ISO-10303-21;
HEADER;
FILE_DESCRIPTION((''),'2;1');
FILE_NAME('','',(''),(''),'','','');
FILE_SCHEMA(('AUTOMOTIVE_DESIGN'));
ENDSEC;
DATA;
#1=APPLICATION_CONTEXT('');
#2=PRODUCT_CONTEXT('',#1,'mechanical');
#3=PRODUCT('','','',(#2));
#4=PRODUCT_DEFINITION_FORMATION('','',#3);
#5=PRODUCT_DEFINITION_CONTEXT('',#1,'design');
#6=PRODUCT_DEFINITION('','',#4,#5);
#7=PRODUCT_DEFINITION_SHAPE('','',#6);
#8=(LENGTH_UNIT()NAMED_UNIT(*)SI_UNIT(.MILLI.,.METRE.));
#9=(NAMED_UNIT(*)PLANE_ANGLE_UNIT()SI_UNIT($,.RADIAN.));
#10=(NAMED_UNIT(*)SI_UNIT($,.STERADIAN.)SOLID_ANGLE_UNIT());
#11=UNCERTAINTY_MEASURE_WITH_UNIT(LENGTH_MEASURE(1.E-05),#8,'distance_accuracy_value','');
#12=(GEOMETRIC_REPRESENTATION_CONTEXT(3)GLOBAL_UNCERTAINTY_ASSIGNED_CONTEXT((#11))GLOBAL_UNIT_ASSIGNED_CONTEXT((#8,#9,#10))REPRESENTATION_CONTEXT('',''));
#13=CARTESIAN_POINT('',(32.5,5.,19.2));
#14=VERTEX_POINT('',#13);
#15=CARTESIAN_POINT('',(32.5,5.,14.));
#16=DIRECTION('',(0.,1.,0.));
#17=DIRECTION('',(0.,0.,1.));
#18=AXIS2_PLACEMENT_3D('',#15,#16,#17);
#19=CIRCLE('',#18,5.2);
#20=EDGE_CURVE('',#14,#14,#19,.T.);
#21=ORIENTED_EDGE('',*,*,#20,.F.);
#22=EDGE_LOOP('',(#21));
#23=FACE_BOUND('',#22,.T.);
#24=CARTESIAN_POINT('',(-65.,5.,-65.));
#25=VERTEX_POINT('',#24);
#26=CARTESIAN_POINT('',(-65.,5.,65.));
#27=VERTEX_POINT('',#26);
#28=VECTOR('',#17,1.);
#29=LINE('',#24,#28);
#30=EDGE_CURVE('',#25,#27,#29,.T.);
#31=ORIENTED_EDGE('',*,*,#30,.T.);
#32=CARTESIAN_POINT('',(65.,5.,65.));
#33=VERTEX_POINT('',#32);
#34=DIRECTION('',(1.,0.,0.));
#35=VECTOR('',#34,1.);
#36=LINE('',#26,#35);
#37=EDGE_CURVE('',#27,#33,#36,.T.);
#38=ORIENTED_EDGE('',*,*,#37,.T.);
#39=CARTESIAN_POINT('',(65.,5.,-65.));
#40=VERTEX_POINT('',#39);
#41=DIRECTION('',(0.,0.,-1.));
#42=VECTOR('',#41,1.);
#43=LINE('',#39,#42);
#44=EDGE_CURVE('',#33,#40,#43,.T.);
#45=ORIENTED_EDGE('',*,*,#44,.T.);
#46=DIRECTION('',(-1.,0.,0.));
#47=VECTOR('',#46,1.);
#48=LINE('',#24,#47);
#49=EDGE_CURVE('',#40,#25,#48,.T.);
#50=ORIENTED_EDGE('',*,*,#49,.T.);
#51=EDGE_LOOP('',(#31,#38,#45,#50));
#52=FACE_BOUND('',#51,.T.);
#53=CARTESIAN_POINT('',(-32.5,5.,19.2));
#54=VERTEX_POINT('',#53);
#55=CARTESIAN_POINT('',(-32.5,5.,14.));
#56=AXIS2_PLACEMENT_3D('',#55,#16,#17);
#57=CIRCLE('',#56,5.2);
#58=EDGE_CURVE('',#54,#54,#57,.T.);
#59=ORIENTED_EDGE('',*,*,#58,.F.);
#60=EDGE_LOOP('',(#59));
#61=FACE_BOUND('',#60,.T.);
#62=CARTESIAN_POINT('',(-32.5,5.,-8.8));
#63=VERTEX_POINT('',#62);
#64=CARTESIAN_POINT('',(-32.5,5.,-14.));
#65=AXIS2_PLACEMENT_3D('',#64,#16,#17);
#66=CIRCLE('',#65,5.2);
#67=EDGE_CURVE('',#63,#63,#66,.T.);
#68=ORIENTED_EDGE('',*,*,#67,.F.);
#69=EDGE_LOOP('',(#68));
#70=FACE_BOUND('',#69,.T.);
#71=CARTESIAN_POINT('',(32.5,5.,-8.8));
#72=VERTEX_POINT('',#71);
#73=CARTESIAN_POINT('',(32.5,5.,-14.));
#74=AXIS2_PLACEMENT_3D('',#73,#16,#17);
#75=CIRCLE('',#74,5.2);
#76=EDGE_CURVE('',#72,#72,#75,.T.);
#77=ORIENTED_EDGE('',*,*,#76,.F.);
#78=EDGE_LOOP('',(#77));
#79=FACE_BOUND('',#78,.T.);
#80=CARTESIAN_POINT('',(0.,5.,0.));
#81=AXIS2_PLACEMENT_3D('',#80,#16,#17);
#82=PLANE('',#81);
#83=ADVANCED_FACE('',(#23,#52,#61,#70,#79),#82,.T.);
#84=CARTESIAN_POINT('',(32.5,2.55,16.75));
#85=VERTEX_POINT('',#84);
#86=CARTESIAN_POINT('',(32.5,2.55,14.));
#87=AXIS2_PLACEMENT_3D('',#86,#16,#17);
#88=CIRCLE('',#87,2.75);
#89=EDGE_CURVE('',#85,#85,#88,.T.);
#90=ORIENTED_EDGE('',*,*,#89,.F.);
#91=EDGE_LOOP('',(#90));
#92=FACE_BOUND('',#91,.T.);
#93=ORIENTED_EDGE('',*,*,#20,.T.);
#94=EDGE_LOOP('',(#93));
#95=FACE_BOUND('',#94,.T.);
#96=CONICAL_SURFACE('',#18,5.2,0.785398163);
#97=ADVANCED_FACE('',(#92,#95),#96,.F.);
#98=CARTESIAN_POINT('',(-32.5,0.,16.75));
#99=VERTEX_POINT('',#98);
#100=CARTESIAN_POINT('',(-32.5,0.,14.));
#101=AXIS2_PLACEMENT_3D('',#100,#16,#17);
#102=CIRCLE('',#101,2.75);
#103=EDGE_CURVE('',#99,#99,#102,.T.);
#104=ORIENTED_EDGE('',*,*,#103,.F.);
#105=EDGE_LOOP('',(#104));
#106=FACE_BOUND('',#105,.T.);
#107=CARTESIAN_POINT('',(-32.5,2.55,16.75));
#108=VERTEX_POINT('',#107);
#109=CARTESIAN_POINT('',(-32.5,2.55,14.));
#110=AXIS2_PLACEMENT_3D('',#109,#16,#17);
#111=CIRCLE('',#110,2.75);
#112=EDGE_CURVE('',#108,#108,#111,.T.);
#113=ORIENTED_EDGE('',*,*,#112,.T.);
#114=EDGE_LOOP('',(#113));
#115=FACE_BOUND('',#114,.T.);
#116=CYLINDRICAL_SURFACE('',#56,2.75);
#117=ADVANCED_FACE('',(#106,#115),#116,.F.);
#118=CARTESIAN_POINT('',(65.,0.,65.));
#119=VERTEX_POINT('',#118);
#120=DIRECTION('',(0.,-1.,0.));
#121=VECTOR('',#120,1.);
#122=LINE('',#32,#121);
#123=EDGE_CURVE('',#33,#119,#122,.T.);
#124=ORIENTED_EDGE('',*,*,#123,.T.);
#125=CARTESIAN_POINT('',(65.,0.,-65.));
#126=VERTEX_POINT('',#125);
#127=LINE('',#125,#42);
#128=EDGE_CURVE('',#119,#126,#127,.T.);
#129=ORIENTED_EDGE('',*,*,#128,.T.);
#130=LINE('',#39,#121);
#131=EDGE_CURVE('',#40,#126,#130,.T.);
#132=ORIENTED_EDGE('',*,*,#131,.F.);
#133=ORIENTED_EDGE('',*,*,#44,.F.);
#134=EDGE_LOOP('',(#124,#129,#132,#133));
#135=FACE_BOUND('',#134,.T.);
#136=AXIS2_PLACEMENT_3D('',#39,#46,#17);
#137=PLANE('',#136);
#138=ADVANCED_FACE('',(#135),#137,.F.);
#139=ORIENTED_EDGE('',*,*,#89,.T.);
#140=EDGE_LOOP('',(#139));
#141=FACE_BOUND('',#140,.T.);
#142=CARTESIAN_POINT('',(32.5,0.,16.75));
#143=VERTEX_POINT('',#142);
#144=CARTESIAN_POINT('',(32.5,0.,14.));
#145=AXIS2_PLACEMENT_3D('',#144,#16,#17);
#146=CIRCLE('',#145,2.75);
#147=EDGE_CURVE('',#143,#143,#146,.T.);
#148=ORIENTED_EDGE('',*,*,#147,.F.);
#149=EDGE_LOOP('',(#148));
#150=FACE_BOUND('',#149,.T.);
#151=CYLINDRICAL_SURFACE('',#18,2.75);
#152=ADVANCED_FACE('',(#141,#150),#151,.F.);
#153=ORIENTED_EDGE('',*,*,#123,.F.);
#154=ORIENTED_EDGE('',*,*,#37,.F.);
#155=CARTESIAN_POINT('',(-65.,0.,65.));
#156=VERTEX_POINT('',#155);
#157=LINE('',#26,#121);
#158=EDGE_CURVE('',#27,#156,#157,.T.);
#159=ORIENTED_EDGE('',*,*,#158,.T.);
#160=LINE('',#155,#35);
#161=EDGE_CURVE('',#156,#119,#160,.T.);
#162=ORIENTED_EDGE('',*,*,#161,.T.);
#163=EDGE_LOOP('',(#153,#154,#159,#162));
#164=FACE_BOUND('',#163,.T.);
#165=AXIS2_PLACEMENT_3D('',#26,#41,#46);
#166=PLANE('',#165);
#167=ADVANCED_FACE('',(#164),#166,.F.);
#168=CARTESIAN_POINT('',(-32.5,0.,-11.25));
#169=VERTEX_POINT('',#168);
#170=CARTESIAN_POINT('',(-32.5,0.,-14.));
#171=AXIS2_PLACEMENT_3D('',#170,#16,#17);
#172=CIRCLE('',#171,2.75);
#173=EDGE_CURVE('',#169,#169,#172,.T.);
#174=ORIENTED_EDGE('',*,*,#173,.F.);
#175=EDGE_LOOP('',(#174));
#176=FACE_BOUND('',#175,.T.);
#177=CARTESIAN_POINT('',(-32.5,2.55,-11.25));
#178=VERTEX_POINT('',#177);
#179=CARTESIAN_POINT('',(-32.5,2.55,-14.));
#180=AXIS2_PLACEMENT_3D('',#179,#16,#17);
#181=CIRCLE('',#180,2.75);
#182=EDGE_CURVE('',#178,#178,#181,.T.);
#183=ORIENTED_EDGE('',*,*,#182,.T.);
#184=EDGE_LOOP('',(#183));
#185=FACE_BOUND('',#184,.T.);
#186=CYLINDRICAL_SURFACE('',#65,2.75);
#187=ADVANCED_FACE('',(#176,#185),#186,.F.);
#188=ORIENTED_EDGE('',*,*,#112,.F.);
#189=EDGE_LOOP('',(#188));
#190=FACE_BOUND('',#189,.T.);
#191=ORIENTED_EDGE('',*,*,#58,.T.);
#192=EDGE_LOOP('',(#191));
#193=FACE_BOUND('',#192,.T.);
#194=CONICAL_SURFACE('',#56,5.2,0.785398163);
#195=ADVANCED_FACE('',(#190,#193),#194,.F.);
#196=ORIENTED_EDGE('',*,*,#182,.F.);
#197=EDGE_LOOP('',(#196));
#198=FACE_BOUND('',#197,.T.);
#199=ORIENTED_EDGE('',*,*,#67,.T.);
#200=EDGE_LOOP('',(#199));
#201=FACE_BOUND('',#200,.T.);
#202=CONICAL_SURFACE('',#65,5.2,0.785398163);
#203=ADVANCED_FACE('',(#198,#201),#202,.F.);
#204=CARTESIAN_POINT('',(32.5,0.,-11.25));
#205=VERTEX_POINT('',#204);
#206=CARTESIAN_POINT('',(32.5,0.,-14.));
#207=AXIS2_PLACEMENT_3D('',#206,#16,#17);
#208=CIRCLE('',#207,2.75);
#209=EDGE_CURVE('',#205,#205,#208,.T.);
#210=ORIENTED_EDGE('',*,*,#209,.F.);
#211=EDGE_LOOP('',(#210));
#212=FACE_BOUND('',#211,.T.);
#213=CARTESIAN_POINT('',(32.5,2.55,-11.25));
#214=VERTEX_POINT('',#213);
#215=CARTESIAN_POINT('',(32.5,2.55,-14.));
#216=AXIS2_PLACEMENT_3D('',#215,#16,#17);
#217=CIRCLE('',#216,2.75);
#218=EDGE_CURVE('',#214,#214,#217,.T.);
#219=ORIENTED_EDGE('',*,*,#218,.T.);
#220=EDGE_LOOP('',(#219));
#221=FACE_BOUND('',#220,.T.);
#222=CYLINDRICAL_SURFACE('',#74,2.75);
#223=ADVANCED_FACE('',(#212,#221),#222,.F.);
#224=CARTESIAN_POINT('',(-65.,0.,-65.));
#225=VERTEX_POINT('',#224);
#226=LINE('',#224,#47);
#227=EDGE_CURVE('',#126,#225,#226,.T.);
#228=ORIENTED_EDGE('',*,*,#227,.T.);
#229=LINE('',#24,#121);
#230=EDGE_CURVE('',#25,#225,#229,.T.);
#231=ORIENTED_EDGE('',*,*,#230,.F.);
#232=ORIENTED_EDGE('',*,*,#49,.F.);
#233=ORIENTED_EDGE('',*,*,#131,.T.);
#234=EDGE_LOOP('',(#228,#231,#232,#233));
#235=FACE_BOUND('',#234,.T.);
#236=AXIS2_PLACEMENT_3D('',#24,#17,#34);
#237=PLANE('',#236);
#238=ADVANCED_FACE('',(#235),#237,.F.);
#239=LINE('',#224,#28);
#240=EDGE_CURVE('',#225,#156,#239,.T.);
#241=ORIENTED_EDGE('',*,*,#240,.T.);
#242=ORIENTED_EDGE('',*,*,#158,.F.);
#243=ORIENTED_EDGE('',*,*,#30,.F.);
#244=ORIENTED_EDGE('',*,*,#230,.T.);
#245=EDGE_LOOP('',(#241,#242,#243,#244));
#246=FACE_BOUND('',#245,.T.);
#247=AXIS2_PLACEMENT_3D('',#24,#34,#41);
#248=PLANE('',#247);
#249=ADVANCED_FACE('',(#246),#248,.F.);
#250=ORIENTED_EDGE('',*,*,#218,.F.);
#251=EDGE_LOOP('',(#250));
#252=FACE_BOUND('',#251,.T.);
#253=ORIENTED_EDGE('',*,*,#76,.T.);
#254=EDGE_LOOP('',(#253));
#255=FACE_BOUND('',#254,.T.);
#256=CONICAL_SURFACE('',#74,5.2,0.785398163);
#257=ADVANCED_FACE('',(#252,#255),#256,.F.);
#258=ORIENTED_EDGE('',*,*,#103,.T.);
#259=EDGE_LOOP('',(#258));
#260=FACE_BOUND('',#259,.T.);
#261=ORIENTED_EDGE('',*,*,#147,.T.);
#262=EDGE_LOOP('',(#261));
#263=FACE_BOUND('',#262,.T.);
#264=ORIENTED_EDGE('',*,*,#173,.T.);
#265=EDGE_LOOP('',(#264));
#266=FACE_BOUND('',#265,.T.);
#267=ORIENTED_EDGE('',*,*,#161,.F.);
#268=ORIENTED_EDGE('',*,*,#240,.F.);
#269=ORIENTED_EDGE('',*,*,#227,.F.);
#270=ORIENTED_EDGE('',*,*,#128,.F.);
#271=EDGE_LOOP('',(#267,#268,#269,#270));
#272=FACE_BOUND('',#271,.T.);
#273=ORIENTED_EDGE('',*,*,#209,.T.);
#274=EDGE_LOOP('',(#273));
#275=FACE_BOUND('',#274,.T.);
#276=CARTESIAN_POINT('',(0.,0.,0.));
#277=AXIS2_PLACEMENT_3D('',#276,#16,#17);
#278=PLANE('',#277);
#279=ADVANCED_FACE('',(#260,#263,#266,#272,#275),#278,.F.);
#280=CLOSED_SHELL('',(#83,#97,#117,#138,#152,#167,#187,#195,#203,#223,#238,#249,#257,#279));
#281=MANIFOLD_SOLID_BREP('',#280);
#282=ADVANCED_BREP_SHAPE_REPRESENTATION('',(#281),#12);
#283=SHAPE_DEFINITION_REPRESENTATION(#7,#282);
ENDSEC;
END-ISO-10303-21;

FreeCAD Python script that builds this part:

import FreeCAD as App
import Part
import Sketcher

V = App.Vector
Q = App.Units.Quantity

doc = App.newDocument("Part")
body = doc.addObject("PartDesign::Body", "Body")

# Sketch on XZ plane
sketch1 = doc.addObject("Sketcher::SketchObject", "Sketch")
body.addObject(sketch1)
sketch1.AttachmentSupport = (doc.XZ_Plane, [""])
sketch1.MapMode = "FlatFace"
sketch1.addGeometry(Part.LineSegment(V(-65, -65, 0), V(-65, 65, 0)), False)
sketch1.addGeometry(Part.LineSegment(V(-65, 65, 0), V(65, 65, 0)), False)
sketch1.addGeometry(Part.LineSegment(V(65, 65, 0), V(65, -65, 0)), False)
sketch1.addGeometry(Part.LineSegment(V(65, -65, 0), V(-65, -65, 0)), False)
sketch1.addConstraint(Sketcher.Constraint("Coincident", 0, 2, 1, 1))
sketch1.addConstraint(Sketcher.Constraint("Coincident", 1, 2, 2, 1))
sketch1.addConstraint(Sketcher.Constraint("Coincident", 2, 2, 3, 1))
sketch1.addConstraint(Sketcher.Constraint("Coincident", 3, 2, 0, 1))
sketch1.addConstraint(Sketcher.Constraint("Vertical", 0))
sketch1.addConstraint(Sketcher.Constraint("Horizontal", 1))
sketch1.addConstraint(Sketcher.Constraint("Vertical", 2))
sketch1.addConstraint(Sketcher.Constraint("Horizontal", 3))
sketch1.addConstraint(Sketcher.Constraint("Symmetric", 0, 2, 2, 2, -1, 1))
sketch1.addConstraint(Sketcher.Constraint("Equal", 3, 0))
sketch1.addConstraint(Sketcher.Constraint("DistanceX", 1, 1, 1, 2, Q("130 mm")))
pad1 = doc.addObject("PartDesign::Pad", "Pad")
body.addObject(pad1)
pad1.Profile = sketch1
pad1.Length = 5
pad1.Reversed = True

# Sketch on YZ plane
sketch2 = doc.addObject("Sketcher::SketchObject", "Sketch001")
body.addObject(sketch2)
sketch2.AttachmentSupport = (doc.YZ_Plane, [""])
sketch2.MapMode = "FlatFace"
sketch2.AttachmentOffset = App.Placement(V(0, 0, -32.5), App.Rotation())
sketch2.addGeometry(Part.LineSegment(V(0, -14, 0), V(5, -14, 0)), False)
sketch2.addGeometry(Part.LineSegment(V(5, -14, 0), V(5, -8.8, 0)), False)
sketch2.addGeometry(Part.LineSegment(V(5, -8.8, 0), V(2.5, -11.2, 0)), False)
sketch2.addGeometry(Part.LineSegment(V(2.5, -11.2, 0), V(0, -11.2, 0)), False)
sketch2.addGeometry(Part.LineSegment(V(0, -11.2, 0), V(0, -14, 0)), False)
sketch2.addGeometry(Part.LineSegment(V(5, -14, 0), V(0, -14, 0)), True)  # axis
sketch2.addConstraint(Sketcher.Constraint("Coincident", 0, 2, 1, 1))
sketch2.addConstraint(Sketcher.Constraint("Coincident", 1, 2, 2, 1))
sketch2.addConstraint(Sketcher.Constraint("Coincident", 2, 2, 3, 1))
sketch2.addConstraint(Sketcher.Constraint("Coincident", 3, 2, 4, 1))
sketch2.addConstraint(Sketcher.Constraint("Coincident", 4, 2, 0, 1))
sketch2.addConstraint(Sketcher.Constraint("Horizontal", 0))
sketch2.addConstraint(Sketcher.Constraint("Vertical", 1))
sketch2.addConstraint(Sketcher.Constraint("Horizontal", 3))
sketch2.addConstraint(Sketcher.Constraint("Vertical", 4))
sketch2.addConstraint(Sketcher.Constraint("Horizontal", 5))
sketch2.addConstraint(Sketcher.Constraint("Coincident", 5, 1, 0, 2))
sketch2.addConstraint(Sketcher.Constraint("PointOnObject", 3, 2, -2))
sketch2.addConstraint(Sketcher.Constraint("PointOnObject", 5, 2, -2))
sketch2.addConstraint(Sketcher.Constraint("DistanceX", 0, 1, 0, 2, Q("5 mm")))
sketch2.addConstraint(Sketcher.Constraint("Angle", 2, Q("-135 deg")))
sketch2.addConstraint(Sketcher.Constraint("DistanceY", 1, 1, 1, 2, Q("5.2 mm")))
sketch2.addConstraint(Sketcher.Constraint("DistanceY", 0, 2, -1, 1, Q("14 mm")))
sketch2.addConstraint(Sketcher.Constraint("DistanceX", 3, 2, 3, 1, Q("2.55 mm")))
groove = doc.addObject("PartDesign::Groove", "Groove")
body.addObject(groove)
groove.Profile = sketch2
groove.ReferenceAxis = (sketch2, ["Axis0"])
groove.Angle = 360
doc.recompute()

linearpattern = doc.addObject("PartDesign::LinearPattern", "LinearPattern")
body.addObject(linearpattern)
linearpattern.Originals = [groove]
linearpattern.Direction = (doc.X_Axis, [""])
linearpattern.Mode = "offset"
linearpattern.Offset = 65
linearpattern.Occurrences = 2
body.Tip = linearpattern
doc.recompute()

datumline = doc.addObject("PartDesign::Line", "DatumLine")
body.addObject(datumline)
datumline.Placement = App.Placement(V(0, 0, 0), App.Rotation(V(0, 0, 1), V(0.918412616, 0, 0.395623896)))
linearpattern2 = doc.addObject("PartDesign::LinearPattern", "LinearPattern001")
body.addObject(linearpattern2)
linearpattern2.Originals = [groove]
linearpattern2.Direction = (datumline, [""])
linearpattern2.Mode = "offset"
linearpattern2.Offset = 70.774289
linearpattern2.Occurrences = 2
body.Tip = linearpattern2
doc.recompute()

linearpattern3 = doc.addObject("PartDesign::LinearPattern", "LinearPattern002")
body.addObject(linearpattern3)
linearpattern3.Originals = [groove]
linearpattern3.Direction = (doc.Z_Axis, [""])
linearpattern3.Mode = "offset"
linearpattern3.Offset = 28
linearpattern3.Occurrences = 2
body.Tip = linearpattern3

doc.recompute()
